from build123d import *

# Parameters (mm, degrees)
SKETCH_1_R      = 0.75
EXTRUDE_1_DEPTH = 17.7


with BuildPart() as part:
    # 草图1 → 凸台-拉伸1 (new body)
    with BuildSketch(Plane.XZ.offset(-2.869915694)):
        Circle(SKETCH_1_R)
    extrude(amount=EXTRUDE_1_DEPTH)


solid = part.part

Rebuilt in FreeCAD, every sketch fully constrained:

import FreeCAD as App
import Part
import Sketcher

V = App.Vector
Q = App.Units.Quantity

doc = App.newDocument("Part")
body = doc.addObject("PartDesign::Body", "Body")

sketch1 = body.newObject("Sketcher::SketchObject", "Sketch")
sketch1.AttachmentSupport = (doc.getObject("XZ_Plane"), [""])
sketch1.MapMode = "FlatFace"
sketch1.AttachmentOffset = App.Placement(V(0, 0, -2.869916), App.Rotation())
sketch1.addGeometry(Part.Circle(V(0, 0, 0), V(0, 0, 1), 0.8), False)
sketch1.addConstraint([
    Sketcher.Constraint("Coincident", 0, 3, -1, 1),
    Sketcher.Constraint("Diameter", 0, Q("1.5 mm")),
])
pad1 = body.newObject("PartDesign::Pad", "Pad")
pad1.Profile = sketch1
pad1.Length = 17.7

doc.recompute()
